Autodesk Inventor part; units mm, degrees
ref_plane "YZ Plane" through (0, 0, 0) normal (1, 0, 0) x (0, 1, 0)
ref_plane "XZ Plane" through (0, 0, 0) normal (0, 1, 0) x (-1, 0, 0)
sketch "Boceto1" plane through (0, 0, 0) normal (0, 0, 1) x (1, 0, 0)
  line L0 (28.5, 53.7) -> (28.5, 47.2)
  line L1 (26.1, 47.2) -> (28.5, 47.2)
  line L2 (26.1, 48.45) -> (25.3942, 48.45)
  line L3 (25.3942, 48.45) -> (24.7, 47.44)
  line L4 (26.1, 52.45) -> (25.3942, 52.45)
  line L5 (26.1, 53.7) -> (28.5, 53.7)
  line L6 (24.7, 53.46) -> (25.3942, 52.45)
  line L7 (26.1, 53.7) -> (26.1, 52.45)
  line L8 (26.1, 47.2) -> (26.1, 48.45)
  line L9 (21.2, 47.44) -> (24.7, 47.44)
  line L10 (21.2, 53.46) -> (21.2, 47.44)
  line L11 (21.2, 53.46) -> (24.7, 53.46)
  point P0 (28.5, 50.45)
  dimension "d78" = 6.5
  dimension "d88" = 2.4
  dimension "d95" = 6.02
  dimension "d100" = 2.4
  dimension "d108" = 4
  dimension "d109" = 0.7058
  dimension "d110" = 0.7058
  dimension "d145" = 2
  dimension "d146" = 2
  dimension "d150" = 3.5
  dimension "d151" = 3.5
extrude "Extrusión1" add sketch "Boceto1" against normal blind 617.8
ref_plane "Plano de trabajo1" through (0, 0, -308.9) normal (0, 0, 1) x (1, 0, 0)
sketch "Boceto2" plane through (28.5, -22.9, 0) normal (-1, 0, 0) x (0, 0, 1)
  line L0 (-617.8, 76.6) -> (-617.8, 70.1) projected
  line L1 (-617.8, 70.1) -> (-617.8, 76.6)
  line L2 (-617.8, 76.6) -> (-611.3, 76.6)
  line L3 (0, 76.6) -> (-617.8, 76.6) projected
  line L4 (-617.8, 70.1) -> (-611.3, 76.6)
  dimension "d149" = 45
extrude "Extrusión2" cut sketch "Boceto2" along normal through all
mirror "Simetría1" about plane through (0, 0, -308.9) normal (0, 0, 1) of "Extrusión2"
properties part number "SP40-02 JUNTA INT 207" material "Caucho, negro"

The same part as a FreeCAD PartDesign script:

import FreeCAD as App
import Part
import Sketcher
from FreeCAD import Vector
Q = App.Units.Quantity

doc = App.newDocument("Part")
body = doc.addObject("PartDesign::Body", "Body")

# Sketch on XY plane
sketch1 = body.newObject("Sketcher::SketchObject", "Sketch")
sketch1.AttachmentSupport = (doc.getObject("XY_Plane"), [""])
sketch1.MapMode = "FlatFace"
sketch1.addGeometry([
    Part.LineSegment(Vector(28.5, 47.2, 0), Vector(28.5, 53.7, 0)),  # 0
    Part.LineSegment(Vector(28.5, 53.7, 0), Vector(26.1, 53.7, 0)),  # 1
    Part.LineSegment(Vector(26.1, 53.7, 0), Vector(26.1, 52.5, 0)),  # 2
    Part.LineSegment(Vector(26.1, 52.5, 0), Vector(25.4, 52.5, 0)),  # 3
    Part.LineSegment(Vector(25.4, 52.5, 0), Vector(24.7, 53.5, 0)),  # 4
    Part.LineSegment(Vector(24.7, 53.5, 0), Vector(21.2, 53.5, 0)),  # 5
    Part.LineSegment(Vector(21.2, 53.5, 0), Vector(21.2, 47.4, 0)),  # 6
    Part.LineSegment(Vector(21.2, 47.4, 0), Vector(24.7, 47.4, 0)),  # 7
    Part.LineSegment(Vector(24.7, 47.4, 0), Vector(25.4, 48.5, 0)),  # 8
    Part.LineSegment(Vector(25.4, 48.5, 0), Vector(26.1, 48.5, 0)),  # 9
    Part.LineSegment(Vector(26.1, 48.5, 0), Vector(26.1, 47.2, 0)),  # 10
    Part.LineSegment(Vector(26.1, 47.2, 0), Vector(28.5, 47.2, 0)),  # 11
], False)
sketch1.addConstraint([
    Sketcher.Constraint("Coincident", 0, 2, 1, 1),
    Sketcher.Constraint("Coincident", 1, 2, 2, 1),
    Sketcher.Constraint("Coincident", 2, 2, 3, 1),
    Sketcher.Constraint("Coincident", 3, 2, 4, 1),
    Sketcher.Constraint("Coincident", 4, 2, 5, 1),
    Sketcher.Constraint("Coincident", 5, 2, 6, 1),
    Sketcher.Constraint("Coincident", 6, 2, 7, 1),
    Sketcher.Constraint("Coincident", 7, 2, 8, 1),
    Sketcher.Constraint("Coincident", 8, 2, 9, 1),
    Sketcher.Constraint("Coincident", 9, 2, 10, 1),
    Sketcher.Constraint("Coincident", 10, 2, 11, 1),
    Sketcher.Constraint("Coincident", 11, 2, 0, 1),
    Sketcher.Constraint("Vertical", 0),
    Sketcher.Constraint("Horizontal", 1),
    Sketcher.Constraint("Vertical", 2),
    Sketcher.Constraint("Horizontal", 3),
    Sketcher.Constraint("Horizontal", 5),
    Sketcher.Constraint("Vertical", 6),
    Sketcher.Constraint("Horizontal", 7),
    Sketcher.Constraint("Horizontal", 9),
    Sketcher.Constraint("Vertical", 10),
    Sketcher.Constraint("Horizontal", 11),
    Sketcher.Constraint("Vertical", 4, 2, 7, 2),
    Sketcher.Constraint("Vertical", 3, 2, 8, 2),
    Sketcher.Constraint("Vertical", 2, 2, 9, 2),
    Sketcher.Constraint("Equal", 2, 10),
    Sketcher.Constraint("Equal", 4, 8),
    Sketcher.Constraint("DistanceX", 1, 2, 1, 1, Q("2.4 mm")),
    Sketcher.Constraint("DistanceX", 5, 2, 5, 1, Q("3.5 mm")),
    Sketcher.Constraint("DistanceY", 0, 1, 0, 2, Q("6.5 mm")),
    Sketcher.Constraint("DistanceY", 8, 2, 3, 2, Q("4 mm")),
    Sketcher.Constraint("DistanceY", 6, 2, 6, 1, Q("6.02 mm")),
    Sketcher.Constraint("DistanceX", 3, 2, 3, 1, Q("0.7058 mm")),
    Sketcher.Constraint("DistanceX", -1, 1, 0, 2, Q("28.5 mm")),
    Sketcher.Constraint("DistanceY", -1, 1, 0, 2, Q("53.7 mm")),
    Sketcher.Constraint("DistanceX", -1, 1, 4, 2, Q("24.7 mm")),
])
pad1 = body.newObject("PartDesign::Pad", "Pad")
pad1.Profile = sketch1
pad1.Length = 617.8
pad1.Reversed = True

# Sketch on YZ plane
sketch2 = body.newObject("Sketcher::SketchObject", "Sketch001")
sketch2.AttachmentSupport = (doc.getObject("YZ_Plane"), [""])
sketch2.MapMode = "FlatFace"
sketch2.AttachmentOffset = App.Placement(Vector(0, 0, 28.5), App.Rotation())
sketch2.addGeometry([
    Part.LineSegment(Vector(54, -611, 0), Vector(54, -618, 0)),
    Part.LineSegment(Vector(54, -618, 0), Vector(47, -618, 0)),
    Part.LineSegment(Vector(47, -618, 0), Vector(54, -611, 0)),
], False)
sketch2.addConstraint([
    Sketcher.Constraint("Coincident", 0, 2, 1, 1),
    Sketcher.Constraint("Coincident", 1, 2, 2, 1),
    Sketcher.Constraint("Coincident", 2, 2, 0, 1),
    Sketcher.Constraint("Vertical", 0),
    Sketcher.Constraint("Horizontal", 1),
    Sketcher.Constraint("Equal", 1, 0),
    Sketcher.Constraint("DistanceX", 1, 2, 1, 1, Q("6.5 mm")),
    Sketcher.Constraint("DistanceX", -1, 1, 0, 2, Q("53.7 mm")),
    Sketcher.Constraint("DistanceY", 0, 2, -1, 1, Q("617.8 mm")),
])
pocket1 = body.newObject("PartDesign::Pocket", "Pocket")
pocket1.Profile = sketch2
pocket1.Type = "ThroughAll"
doc.recompute()

datumplane = body.newObject("PartDesign::Plane", "DatumPlane")
datumplane.AttachmentSupport = (doc.getObject("XY_Plane"), [""])
datumplane.MapMode = "FlatFace"
datumplane.AttachmentOffset = App.Placement(Vector(0, 0, -308.9), App.Rotation())
mirrored = body.newObject("PartDesign::Mirrored", "Mirrored")
mirrored.Originals = [pocket1]
mirrored.MirrorPlane = (datumplane, [""])
body.Tip = mirrored

doc.recompute()
